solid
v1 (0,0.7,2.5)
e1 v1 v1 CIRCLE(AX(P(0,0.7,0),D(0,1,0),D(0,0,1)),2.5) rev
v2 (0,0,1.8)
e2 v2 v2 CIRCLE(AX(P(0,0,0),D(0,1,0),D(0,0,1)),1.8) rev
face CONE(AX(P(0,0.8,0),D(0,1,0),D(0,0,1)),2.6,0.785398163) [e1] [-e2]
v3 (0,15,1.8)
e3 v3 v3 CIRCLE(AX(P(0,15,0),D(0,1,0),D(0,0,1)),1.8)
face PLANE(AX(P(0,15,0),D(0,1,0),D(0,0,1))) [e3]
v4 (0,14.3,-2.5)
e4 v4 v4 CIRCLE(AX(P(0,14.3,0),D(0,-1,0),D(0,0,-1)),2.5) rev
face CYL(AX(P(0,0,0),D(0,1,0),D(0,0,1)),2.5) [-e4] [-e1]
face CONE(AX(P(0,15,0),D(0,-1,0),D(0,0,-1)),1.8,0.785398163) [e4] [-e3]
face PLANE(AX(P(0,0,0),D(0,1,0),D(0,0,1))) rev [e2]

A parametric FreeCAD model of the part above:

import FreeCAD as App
import Part
import Sketcher
from FreeCAD import Vector


def edges_at(feature, points):
    """Names of the edges that pass closest to the given points."""
    edges = feature.Shape.Edges
    near = lambda p: min(range(len(edges)), key=lambda i: edges[i].distToShape(Part.Vertex(*p))[0])
    return sorted({f"Edge{near(p) + 1}" for p in points})

doc = App.newDocument("Part")
body = doc.addObject("PartDesign::Body", "Body")

# Sketch on XZ plane
sketch1 = body.newObject("Sketcher::SketchObject", "Sketch")
sketch1.AttachmentSupport = (doc.getObject("XZ_Plane"), [""])
sketch1.MapMode = "FlatFace"
sketch1.addGeometry(Part.Circle(Vector(0, 0, 0), Vector(0, 0, 1), 2.6), False)
sketch1.addConstraint([
    Sketcher.Constraint("Coincident", 0, 3, -1, 1),
    Sketcher.Constraint("Diameter", 0, 5.2),
])
pad1 = body.newObject("PartDesign::Pad", "Pad")
pad1.Profile = sketch1
pad1.Length = 15
pad1.Reversed = True
doc.recompute()

chamfer = body.newObject("PartDesign::Chamfer", "Chamfer")
chamfer.Base = (pad1, edges_at(pad1, [(0, 0, -2.6), (0, 15, -2.6)]))
chamfer.Size = 0.8

# Sketch on XZ plane
sketch2 = body.newObject("Sketcher::SketchObject", "Sketch001")
sketch2.AttachmentSupport = (doc.getObject("XZ_Plane"), [""])
sketch2.MapMode = "FlatFace"
sketch2.AttachmentOffset = App.Placement(Vector(0, 0, -15), App.Rotation())
sketch2.addGeometry([
    Part.Circle(Vector(0, 0, 0), Vector(0, 0, 1), 2.6),
    Part.Circle(Vector(0, 0, 0), Vector(0, 0, 1), 2.5),
], False)
sketch2.addConstraint([
    Sketcher.Constraint("Coincident", 0, 3, -1, 1),
    Sketcher.Constraint("Coincident", 1, 3, -1, 1),
    Sketcher.Constraint("Diameter", 1, 5.0),
    Sketcher.Constraint("Diameter", 0, 5.2),
])
pocket1 = body.newObject("PartDesign::Pocket", "Pocket")
pocket1.Profile = sketch2
pocket1.Type = "ThroughAll"
pocket1.Reversed = True

doc.recompute()
